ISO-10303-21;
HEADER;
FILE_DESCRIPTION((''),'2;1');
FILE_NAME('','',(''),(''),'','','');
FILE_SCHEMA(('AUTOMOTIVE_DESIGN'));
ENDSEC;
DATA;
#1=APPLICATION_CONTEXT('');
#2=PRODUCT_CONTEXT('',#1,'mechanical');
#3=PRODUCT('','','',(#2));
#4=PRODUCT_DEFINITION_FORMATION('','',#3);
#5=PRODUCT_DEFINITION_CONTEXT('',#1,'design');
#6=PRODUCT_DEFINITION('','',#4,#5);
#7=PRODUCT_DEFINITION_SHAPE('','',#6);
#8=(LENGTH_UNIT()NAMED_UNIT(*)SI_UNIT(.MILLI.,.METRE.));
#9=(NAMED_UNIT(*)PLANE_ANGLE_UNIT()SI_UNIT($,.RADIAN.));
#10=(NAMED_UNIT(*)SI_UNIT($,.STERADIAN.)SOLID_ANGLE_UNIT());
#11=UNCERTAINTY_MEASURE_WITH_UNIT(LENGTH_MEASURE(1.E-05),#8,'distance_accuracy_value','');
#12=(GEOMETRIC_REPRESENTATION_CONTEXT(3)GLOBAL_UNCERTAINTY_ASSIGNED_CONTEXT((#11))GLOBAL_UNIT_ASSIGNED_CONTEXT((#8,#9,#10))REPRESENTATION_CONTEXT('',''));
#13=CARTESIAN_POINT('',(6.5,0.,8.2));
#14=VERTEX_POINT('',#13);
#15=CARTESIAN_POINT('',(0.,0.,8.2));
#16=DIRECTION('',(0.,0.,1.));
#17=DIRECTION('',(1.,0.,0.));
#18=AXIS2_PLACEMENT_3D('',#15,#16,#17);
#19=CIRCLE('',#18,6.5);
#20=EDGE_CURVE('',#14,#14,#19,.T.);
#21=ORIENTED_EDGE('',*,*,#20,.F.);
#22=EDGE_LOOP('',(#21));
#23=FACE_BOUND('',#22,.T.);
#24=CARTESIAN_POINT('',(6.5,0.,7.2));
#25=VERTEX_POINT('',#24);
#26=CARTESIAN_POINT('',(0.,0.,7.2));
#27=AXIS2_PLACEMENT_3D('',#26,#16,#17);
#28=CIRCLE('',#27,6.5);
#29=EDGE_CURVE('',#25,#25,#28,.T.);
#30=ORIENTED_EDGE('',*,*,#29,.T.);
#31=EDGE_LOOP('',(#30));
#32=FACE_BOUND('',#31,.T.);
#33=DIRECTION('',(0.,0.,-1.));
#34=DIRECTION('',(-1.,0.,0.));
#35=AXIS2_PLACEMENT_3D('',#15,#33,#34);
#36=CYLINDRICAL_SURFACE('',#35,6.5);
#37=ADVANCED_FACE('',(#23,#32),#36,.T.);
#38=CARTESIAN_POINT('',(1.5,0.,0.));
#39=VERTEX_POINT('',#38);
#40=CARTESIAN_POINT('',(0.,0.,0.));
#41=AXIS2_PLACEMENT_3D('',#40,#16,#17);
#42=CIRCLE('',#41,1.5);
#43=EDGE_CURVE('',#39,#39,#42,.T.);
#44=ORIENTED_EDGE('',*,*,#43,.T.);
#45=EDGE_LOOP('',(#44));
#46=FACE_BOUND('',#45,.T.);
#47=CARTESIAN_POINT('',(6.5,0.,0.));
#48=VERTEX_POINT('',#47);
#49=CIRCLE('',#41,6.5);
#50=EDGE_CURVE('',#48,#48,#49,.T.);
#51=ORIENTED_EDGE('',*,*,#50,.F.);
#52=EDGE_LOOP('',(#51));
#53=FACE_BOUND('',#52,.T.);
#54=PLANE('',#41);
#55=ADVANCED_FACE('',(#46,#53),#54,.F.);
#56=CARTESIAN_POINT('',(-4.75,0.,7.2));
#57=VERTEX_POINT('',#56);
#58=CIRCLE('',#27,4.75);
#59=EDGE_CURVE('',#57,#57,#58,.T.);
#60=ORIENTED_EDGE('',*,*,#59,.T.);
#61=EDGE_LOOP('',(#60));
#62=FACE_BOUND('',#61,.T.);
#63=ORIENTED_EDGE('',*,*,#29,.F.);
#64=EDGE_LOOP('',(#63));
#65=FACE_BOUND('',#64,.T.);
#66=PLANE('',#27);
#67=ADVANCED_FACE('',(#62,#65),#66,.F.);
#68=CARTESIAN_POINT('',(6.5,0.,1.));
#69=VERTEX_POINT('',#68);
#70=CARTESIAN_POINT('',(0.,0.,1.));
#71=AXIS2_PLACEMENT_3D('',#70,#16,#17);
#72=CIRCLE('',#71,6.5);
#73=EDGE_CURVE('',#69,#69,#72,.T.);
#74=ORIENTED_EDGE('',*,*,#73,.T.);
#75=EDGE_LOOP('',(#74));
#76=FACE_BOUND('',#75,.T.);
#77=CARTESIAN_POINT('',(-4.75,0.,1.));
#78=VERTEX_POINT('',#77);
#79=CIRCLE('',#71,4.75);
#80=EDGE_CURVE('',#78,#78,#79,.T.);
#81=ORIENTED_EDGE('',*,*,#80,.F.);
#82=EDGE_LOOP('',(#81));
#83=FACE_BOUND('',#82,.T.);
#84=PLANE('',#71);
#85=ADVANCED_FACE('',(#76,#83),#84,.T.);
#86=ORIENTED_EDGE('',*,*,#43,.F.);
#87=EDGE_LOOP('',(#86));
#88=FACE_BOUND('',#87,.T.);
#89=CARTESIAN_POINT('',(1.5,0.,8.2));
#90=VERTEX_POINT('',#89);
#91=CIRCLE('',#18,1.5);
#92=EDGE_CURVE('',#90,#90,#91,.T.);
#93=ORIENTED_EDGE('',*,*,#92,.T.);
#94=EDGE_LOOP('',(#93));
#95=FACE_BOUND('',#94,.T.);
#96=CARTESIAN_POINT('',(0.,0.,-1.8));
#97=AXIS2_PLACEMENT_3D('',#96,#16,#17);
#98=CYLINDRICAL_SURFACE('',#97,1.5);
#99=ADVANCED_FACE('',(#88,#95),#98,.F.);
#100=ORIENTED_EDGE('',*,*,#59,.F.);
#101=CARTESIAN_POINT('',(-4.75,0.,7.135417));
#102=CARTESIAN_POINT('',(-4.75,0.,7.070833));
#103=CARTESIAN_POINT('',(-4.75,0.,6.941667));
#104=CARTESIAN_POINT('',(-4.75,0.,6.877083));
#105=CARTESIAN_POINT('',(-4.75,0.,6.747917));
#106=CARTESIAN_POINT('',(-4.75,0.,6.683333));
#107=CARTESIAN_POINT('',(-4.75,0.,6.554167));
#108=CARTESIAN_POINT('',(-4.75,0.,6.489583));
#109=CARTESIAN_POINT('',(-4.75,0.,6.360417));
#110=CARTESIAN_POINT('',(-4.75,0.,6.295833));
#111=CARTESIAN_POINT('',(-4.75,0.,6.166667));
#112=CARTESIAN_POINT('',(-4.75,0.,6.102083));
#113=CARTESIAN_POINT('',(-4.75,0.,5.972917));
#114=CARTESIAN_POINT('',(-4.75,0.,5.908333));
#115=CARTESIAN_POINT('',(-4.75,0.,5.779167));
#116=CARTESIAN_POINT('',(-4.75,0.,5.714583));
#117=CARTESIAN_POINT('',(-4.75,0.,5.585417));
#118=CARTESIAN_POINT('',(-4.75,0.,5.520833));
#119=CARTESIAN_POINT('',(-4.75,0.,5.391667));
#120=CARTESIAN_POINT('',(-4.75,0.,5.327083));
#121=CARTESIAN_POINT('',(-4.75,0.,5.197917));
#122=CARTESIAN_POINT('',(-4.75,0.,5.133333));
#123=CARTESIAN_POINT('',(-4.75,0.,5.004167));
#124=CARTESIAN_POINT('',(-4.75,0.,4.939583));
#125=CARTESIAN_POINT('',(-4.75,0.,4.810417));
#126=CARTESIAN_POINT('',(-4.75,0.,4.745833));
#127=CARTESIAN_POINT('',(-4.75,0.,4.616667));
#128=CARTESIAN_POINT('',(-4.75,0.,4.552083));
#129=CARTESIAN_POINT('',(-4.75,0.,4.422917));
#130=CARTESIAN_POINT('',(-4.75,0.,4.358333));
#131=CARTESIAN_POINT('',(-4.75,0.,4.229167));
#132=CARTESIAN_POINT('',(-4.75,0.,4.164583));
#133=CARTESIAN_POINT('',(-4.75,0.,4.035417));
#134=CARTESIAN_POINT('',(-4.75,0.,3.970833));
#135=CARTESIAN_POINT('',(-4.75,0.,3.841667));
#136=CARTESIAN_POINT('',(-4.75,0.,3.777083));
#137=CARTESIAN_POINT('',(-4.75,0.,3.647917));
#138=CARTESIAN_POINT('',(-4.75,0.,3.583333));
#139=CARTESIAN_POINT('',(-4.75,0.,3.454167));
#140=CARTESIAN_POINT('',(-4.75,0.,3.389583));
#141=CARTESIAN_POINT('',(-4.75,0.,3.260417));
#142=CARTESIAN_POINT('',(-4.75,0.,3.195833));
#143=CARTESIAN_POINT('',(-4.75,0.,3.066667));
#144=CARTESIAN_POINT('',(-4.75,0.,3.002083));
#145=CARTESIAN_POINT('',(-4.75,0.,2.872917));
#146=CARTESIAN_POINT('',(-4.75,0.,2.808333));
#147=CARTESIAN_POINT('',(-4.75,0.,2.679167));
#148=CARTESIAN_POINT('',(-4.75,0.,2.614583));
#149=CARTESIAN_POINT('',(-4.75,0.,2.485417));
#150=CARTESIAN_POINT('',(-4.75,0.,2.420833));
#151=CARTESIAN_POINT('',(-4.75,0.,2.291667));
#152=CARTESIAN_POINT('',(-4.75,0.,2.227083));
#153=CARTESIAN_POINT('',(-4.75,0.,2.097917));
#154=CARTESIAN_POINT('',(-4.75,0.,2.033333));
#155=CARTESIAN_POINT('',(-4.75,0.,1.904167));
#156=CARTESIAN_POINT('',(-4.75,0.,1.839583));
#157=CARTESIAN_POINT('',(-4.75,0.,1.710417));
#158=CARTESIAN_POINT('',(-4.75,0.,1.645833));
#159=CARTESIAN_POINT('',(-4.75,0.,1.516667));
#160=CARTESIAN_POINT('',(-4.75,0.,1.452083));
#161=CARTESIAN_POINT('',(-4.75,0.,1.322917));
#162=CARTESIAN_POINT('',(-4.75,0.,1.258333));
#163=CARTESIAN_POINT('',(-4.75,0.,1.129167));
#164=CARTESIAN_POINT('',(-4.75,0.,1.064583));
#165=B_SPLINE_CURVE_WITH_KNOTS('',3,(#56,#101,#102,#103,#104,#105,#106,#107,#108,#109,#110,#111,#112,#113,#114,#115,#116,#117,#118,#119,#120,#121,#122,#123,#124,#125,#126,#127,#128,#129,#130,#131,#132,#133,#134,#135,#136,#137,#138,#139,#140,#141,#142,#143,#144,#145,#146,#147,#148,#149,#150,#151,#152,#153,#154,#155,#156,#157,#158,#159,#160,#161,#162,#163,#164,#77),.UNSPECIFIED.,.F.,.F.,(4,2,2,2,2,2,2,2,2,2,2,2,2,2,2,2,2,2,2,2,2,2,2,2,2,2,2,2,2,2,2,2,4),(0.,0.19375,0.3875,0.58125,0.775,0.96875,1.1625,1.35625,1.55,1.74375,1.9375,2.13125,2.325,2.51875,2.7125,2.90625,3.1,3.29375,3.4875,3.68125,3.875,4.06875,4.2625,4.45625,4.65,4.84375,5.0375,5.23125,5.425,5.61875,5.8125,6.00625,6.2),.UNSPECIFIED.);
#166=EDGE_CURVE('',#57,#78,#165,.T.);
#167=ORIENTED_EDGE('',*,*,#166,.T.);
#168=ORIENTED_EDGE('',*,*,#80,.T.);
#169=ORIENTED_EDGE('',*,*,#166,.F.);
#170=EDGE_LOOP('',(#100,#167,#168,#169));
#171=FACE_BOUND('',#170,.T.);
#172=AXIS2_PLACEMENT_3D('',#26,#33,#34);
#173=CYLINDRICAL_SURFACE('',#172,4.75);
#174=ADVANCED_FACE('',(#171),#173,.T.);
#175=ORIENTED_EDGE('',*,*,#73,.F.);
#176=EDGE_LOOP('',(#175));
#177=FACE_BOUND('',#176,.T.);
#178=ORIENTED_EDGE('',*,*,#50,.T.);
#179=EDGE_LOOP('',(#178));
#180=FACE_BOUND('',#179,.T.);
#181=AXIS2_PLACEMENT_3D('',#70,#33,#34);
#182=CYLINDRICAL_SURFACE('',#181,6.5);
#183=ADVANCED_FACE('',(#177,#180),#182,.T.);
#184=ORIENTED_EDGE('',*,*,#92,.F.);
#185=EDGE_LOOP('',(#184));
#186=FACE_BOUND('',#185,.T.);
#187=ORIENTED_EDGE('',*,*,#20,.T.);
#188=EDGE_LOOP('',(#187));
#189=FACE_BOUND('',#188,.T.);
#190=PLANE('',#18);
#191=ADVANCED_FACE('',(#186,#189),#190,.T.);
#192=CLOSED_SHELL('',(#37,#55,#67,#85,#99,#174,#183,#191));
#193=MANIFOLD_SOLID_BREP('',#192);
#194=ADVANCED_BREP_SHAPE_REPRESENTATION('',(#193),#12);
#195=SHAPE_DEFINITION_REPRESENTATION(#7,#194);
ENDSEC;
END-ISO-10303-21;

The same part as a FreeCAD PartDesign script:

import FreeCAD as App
import Part
import Sketcher

V = App.Vector

doc = App.newDocument("Part")
params = doc.addObject("Spreadsheet::Sheet", "Params")
for row, (alias, value) in enumerate([
    ("sketch1_diameter", "13 mm"),
    ("pad1_length", "1 mm"),
    ("sketch2_diameter", "9.5 mm"),
    ("pad2_length", "6.2 mm"),
    ("sketch3_diameter", "13 mm"),
    ("pad3_length", "1 mm"),
    ("sketch4_diameter", "3 mm"),
    ("pocket1_length", "10 mm"),
], start=1):
    params.set(f"A{row}", alias)
    params.set(f"B{row}", "=" + value)
    params.setAlias(f"B{row}", alias)

body = doc.addObject("PartDesign::Body", "Body")

# Sketch on XY plane
sketch1 = doc.addObject("Sketcher::SketchObject", "Sketch")
body.addObject(sketch1)
sketch1.AttachmentSupport = (doc.XY_Plane, [""])
sketch1.MapMode = "FlatFace"
sketch1.addGeometry(Part.Circle(V(0, 0, 0), V(0, 0, 1), 6), False)
sketch1.addConstraint(Sketcher.Constraint("Coincident", 0, 3, -1, 1))
sketch1.addConstraint(Sketcher.Constraint("Diameter", 0, 13.0))
sketch1.setExpression("Constraints[1]", "Params.sketch1_diameter")
pad1 = doc.addObject("PartDesign::Pad", "Pad")
body.addObject(pad1)
pad1.Profile = sketch1
pad1.setExpression("Length", "Params.pad1_length")

# Sketch on XY plane
sketch2 = doc.addObject("Sketcher::SketchObject", "Sketch001")
body.addObject(sketch2)
sketch2.AttachmentSupport = (doc.XY_Plane, [""])
sketch2.MapMode = "FlatFace"
sketch2.AttachmentOffset = App.Placement(V(0, 0, 1), App.Rotation())
sketch2.addGeometry(Part.Circle(V(0, 0, 0), V(0, 0, 1), 4.8), False)
sketch2.addConstraint(Sketcher.Constraint("Coincident", 0, 3, -1, 1))
sketch2.addConstraint(Sketcher.Constraint("Diameter", 0, 9.5))
sketch2.setExpression("Constraints[1]", "Params.sketch2_diameter")
pad2 = doc.addObject("PartDesign::Pad", "Pad001")
body.addObject(pad2)
pad2.Profile = sketch2
pad2.setExpression("Length", "Params.pad2_length")

# Sketch on XY plane
sketch3 = doc.addObject("Sketcher::SketchObject", "Sketch002")
body.addObject(sketch3)
sketch3.AttachmentSupport = (doc.XY_Plane, [""])
sketch3.MapMode = "FlatFace"
sketch3.AttachmentOffset = App.Placement(V(0, 0, 7.2), App.Rotation())
sketch3.addGeometry(Part.Circle(V(0, 0, 0), V(0, 0, 1), 6), False)
sketch3.addConstraint(Sketcher.Constraint("Coincident", 0, 3, -1, 1))
sketch3.addConstraint(Sketcher.Constraint("Diameter", 0, 13.0))
sketch3.setExpression("Constraints[1]", "Params.sketch3_diameter")
pad3 = doc.addObject("PartDesign::Pad", "Pad002")
body.addObject(pad3)
pad3.Profile = sketch3
pad3.setExpression("Length", "Params.pad3_length")

# Sketch on XY plane
sketch4 = doc.addObject("Sketcher::SketchObject", "Sketch003")
body.addObject(sketch4)
sketch4.AttachmentSupport = (doc.XY_Plane, [""])
sketch4.MapMode = "FlatFace"
sketch4.AttachmentOffset = App.Placement(V(0, 0, 8.2), App.Rotation())
sketch4.addGeometry(Part.Circle(V(0, 0, 0), V(0, 0, 1), 1.5), False)
sketch4.addConstraint(Sketcher.Constraint("Coincident", 0, 3, -1, 1))
sketch4.addConstraint(Sketcher.Constraint("Diameter", 0, 3.0))
sketch4.setExpression("Constraints[1]", "Params.sketch4_diameter")
pocket1 = doc.addObject("PartDesign::Pocket", "Pocket")
body.addObject(pocket1)
pocket1.Profile = sketch4
pocket1.setExpression("Length", "Params.pocket1_length")

doc.recompute()
